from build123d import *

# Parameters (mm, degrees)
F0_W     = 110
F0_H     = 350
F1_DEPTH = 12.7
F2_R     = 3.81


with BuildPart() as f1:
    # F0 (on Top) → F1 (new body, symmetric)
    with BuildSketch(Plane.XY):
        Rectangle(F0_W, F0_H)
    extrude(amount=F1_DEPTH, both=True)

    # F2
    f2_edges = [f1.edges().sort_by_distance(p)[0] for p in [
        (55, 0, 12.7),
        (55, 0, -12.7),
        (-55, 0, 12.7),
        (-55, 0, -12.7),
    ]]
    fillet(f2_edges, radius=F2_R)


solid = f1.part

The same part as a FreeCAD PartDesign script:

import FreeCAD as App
import Part
import Sketcher
from FreeCAD import Vector
Q = App.Units.Quantity


def edges_at(feature, points):
    """Names of the edges that pass closest to the given points."""
    edges = feature.Shape.Edges
    near = lambda p: min(range(len(edges)), key=lambda i: edges[i].distToShape(Part.Vertex(*p))[0])
    return sorted({f"Edge{near(p) + 1}" for p in points})

doc = App.newDocument("Part")
body = doc.addObject("PartDesign::Body", "Body")

# Sketch on XY plane
sketch1 = body.newObject("Sketcher::SketchObject", "Sketch")
sketch1.AttachmentSupport = (doc.getObject("XY_Plane"), [""])
sketch1.MapMode = "FlatFace"
sketch1.addGeometry([
    Part.LineSegment(Vector(-55, 175, 0), Vector(-55, -175, 0)),
    Part.LineSegment(Vector(-55, -175, 0), Vector(55, -175, 0)),
    Part.LineSegment(Vector(55, -175, 0), Vector(55, 175, 0)),
    Part.LineSegment(Vector(55, 175, 0), Vector(-55, 175, 0)),
], False)
sketch1.addConstraint([
    Sketcher.Constraint("Coincident", 0, 2, 1, 1),
    Sketcher.Constraint("Coincident", 1, 2, 2, 1),
    Sketcher.Constraint("Coincident", 2, 2, 3, 1),
    Sketcher.Constraint("Coincident", 3, 2, 0, 1),
    Sketcher.Constraint("Vertical", 0),
    Sketcher.Constraint("Horizontal", 1),
    Sketcher.Constraint("Vertical", 2),
    Sketcher.Constraint("Horizontal", 3),
    Sketcher.Constraint("Symmetric", 0, 2, 2, 2, -1, 1),
    Sketcher.Constraint("DistanceX", 1, 1, 1, 2, Q("110 mm")),
    Sketcher.Constraint("DistanceY", 0, 2, 0, 1, Q("350 mm")),
])
pad1 = body.newObject("PartDesign::Pad", "Pad")
pad1.Profile = sketch1
pad1.Length = 25.4
pad1.Midplane = True
doc.recompute()

fillet = body.newObject("PartDesign::Fillet", "Fillet")
fillet.Base = (pad1, edges_at(pad1, [
    (55, 0, 12.7),
    (55, 0, -12.7),
    (-55, 0, 12.7),
    (-55, 0, -12.7),
]))
fillet.Radius = 3.81

doc.recompute()
